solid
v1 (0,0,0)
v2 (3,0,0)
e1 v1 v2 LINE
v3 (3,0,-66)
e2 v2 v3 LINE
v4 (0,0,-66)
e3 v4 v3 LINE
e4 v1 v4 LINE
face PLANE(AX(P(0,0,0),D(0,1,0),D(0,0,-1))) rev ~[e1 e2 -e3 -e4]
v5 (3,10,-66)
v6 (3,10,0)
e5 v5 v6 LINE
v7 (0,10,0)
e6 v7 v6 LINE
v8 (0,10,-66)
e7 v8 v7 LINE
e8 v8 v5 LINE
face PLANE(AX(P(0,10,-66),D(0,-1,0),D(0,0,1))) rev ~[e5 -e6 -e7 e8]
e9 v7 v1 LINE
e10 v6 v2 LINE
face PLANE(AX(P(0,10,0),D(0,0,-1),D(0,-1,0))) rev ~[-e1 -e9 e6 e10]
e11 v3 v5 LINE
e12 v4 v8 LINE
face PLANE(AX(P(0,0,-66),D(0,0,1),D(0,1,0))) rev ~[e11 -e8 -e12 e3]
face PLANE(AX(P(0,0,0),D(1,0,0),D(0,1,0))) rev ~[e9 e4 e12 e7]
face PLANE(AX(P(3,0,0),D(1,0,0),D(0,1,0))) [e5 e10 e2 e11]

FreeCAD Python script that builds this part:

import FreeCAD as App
import Part
import Sketcher

V = App.Vector


def add_polygon(sketch, points):
    """Adds a closed chain of lines whose ends are joined by coincident constraints."""
    first, n = sketch.GeometryCount, len(points)
    for a, b in zip(points, points[1:] + points[:1]):
        sketch.addGeometry(Part.LineSegment(App.Vector(*a, 0), App.Vector(*b, 0)), False)
    for i in range(n):
        sketch.addConstraint(Sketcher.Constraint("Coincident", first + i, 2, first + (i + 1) % n, 1))

doc = App.newDocument("Part")
body = doc.addObject("PartDesign::Body", "Body")

# Sketch on YZ plane
sketch1 = body.newObject("Sketcher::SketchObject", "Sketch")
sketch1.AttachmentSupport = (doc.getObject("YZ_Plane"), [""])
sketch1.MapMode = "FlatFace"
add_polygon(sketch1, [(10, 0), (0, 0), (0, -66), (10, -66)])  # lines 0-3
sketch1.addConstraint(Sketcher.Constraint("Horizontal", 0))
sketch1.addConstraint(Sketcher.Constraint("Vertical", 1))
sketch1.addConstraint(Sketcher.Constraint("Horizontal", 2))
sketch1.addConstraint(Sketcher.Constraint("Vertical", 3))
sketch1.addConstraint(Sketcher.Constraint("Coincident", 0, 2, -1, 1))
sketch1.addConstraint(Sketcher.Constraint("DistanceX", 0, 2, 0, 1, 10.0))
sketch1.addConstraint(Sketcher.Constraint("DistanceY", 1, 2, 1, 1, 66.0))
pad1 = body.newObject("PartDesign::Pad", "Pad")
pad1.Profile = sketch1
pad1.Length = 3

doc.recompute()
